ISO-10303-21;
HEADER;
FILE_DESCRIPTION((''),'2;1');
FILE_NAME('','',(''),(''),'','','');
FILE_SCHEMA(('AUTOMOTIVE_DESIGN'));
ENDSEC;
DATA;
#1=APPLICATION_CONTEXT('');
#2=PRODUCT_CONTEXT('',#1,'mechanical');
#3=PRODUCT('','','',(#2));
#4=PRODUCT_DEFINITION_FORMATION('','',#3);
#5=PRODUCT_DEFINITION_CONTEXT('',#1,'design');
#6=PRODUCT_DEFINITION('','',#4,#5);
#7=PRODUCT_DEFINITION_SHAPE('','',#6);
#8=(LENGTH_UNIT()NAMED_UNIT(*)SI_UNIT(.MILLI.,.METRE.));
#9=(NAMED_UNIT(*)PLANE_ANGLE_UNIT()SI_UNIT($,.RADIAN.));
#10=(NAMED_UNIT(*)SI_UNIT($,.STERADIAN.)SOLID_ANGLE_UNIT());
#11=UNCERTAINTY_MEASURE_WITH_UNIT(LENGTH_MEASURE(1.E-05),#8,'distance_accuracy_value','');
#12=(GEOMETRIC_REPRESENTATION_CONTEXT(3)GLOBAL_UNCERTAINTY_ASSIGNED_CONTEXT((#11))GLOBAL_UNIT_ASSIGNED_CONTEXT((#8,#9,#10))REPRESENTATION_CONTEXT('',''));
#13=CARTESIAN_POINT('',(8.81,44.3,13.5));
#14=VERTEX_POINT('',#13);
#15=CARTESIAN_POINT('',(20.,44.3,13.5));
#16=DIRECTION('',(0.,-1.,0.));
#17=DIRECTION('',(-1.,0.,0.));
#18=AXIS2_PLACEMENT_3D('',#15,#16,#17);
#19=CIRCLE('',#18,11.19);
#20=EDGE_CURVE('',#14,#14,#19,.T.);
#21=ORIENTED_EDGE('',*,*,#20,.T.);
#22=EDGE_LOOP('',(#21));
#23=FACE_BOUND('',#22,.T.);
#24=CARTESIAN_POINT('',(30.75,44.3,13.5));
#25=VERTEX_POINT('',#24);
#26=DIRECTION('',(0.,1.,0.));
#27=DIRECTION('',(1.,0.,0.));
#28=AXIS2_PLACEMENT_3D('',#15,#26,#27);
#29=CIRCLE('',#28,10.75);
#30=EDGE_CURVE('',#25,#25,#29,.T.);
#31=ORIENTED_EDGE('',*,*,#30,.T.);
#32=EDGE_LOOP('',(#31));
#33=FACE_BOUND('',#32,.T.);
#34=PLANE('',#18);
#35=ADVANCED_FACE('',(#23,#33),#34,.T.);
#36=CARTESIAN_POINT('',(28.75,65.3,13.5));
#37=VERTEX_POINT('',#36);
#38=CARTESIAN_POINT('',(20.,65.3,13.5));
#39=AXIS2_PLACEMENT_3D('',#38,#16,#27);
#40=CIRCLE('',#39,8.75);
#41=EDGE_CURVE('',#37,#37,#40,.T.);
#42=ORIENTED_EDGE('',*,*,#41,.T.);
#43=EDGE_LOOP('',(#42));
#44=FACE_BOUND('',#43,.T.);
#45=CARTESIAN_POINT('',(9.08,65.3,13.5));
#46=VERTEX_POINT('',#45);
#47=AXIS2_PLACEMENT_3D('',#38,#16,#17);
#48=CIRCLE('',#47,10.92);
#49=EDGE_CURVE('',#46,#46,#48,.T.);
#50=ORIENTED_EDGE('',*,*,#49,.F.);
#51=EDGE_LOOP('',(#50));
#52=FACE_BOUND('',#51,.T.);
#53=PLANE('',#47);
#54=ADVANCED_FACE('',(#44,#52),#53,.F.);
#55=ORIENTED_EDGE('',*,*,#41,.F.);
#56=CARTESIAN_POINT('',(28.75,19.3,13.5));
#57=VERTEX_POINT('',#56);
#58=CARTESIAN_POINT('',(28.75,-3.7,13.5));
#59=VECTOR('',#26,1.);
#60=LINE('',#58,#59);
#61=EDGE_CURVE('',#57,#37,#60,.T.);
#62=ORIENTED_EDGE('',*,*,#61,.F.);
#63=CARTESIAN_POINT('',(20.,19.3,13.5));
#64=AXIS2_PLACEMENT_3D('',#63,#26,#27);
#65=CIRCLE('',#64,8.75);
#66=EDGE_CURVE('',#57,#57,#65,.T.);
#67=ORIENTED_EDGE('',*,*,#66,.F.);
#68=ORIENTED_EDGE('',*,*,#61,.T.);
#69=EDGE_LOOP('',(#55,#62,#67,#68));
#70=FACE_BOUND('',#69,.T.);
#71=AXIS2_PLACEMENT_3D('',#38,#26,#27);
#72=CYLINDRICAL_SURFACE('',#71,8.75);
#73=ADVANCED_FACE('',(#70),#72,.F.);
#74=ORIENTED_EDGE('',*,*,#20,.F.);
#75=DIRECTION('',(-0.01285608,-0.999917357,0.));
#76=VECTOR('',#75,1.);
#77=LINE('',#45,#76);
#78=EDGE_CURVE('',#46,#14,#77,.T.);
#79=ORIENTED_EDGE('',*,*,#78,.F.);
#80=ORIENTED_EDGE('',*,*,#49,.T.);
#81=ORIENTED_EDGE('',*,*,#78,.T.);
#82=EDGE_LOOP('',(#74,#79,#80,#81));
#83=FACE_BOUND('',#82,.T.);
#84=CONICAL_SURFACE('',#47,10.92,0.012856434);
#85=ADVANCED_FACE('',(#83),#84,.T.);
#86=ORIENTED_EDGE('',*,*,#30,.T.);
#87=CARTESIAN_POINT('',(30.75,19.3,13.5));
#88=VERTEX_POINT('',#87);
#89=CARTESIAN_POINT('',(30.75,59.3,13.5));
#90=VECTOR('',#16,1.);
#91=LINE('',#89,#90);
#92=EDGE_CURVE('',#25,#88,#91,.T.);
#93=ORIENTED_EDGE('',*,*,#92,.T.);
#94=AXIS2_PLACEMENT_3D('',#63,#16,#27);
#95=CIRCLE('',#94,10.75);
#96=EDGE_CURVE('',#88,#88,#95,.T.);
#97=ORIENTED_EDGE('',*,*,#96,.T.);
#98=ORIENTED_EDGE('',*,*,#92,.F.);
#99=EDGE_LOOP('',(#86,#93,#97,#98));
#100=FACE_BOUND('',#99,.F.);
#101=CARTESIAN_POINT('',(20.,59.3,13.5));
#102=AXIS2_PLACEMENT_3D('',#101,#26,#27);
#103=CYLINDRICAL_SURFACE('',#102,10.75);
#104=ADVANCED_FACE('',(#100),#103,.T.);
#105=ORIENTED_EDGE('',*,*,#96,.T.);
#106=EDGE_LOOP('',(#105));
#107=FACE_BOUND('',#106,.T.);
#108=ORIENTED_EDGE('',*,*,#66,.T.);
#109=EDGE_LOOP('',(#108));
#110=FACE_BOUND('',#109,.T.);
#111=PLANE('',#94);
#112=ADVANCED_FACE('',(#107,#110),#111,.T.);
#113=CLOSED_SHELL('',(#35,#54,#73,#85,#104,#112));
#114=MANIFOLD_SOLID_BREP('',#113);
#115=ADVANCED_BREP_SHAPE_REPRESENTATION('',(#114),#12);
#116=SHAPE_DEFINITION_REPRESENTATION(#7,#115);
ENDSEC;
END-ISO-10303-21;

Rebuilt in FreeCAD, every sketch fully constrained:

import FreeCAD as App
import Part
import Sketcher
from FreeCAD import Vector


def add_polygon(sketch, points):
    """Adds a closed chain of lines whose ends are joined by coincident constraints."""
    first, n = sketch.GeometryCount, len(points)
    for a, b in zip(points, points[1:] + points[:1]):
        sketch.addGeometry(Part.LineSegment(App.Vector(*a, 0), App.Vector(*b, 0)), False)
    for i in range(n):
        sketch.addConstraint(Sketcher.Constraint("Coincident", first + i, 2, first + (i + 1) % n, 1))

doc = App.newDocument("Part")
body = doc.addObject("PartDesign::Body", "Body")

# Sketch on XZ plane
sketch1 = body.newObject("Sketcher::SketchObject", "Sketch")
sketch1.AttachmentSupport = (doc.getObject("XZ_Plane"), [""])
sketch1.MapMode = "FlatFace"
sketch1.AttachmentOffset = App.Placement(Vector(0, 0, -65.3), App.Rotation())
sketch1.addGeometry(Part.Circle(Vector(20, 14, 0), Vector(0, 0, 1), 9), False)
sketch1.addConstraint([
    Sketcher.Constraint("Diameter", 0, 17.5),
    Sketcher.Constraint("DistanceX", -1, 1, 0, 3, 20.0),
    Sketcher.Constraint("DistanceY", -1, 1, 0, 3, 13.5),
])
pad1 = body.newObject("PartDesign::Pad", "Pad")
pad1.Profile = sketch1
pad1.Length = 40
body2 = doc.addObject("PartDesign::Body", "Body001")

# Sketch on XZ plane
sketch2 = body2.newObject("Sketcher::SketchObject", "Sketch001")
sketch2.AttachmentSupport = (doc.getObject("XZ_Plane001"), [""])
sketch2.MapMode = "FlatFace"
sketch2.AttachmentOffset = App.Placement(Vector(0, 0, -36.3), App.Rotation())
sketch2.addGeometry(Part.Circle(Vector(20, 14, 0), Vector(0, 0, 1), 9), False)
sketch2.addConstraint([
    Sketcher.Constraint("Diameter", 0, 17.5),
    Sketcher.Constraint("DistanceX", -1, 1, 0, 3, 20.0),
    Sketcher.Constraint("DistanceY", -1, 1, 0, 3, 13.5),
])
pad2 = body2.newObject("PartDesign::Pad", "Pad001")
pad2.Profile = sketch2
pad2.Length = 40
doc.recompute()

boolean = body2.newObject("PartDesign::Boolean", "Boolean")
boolean.Type = "Fuse"
boolean.addObjects([body])
body3 = doc.addObject("PartDesign::Body", "Body002")

# Sketch on XZ plane
sketch3 = body3.newObject("Sketcher::SketchObject", "Sketch002")
sketch3.AttachmentSupport = (doc.getObject("XZ_Plane002"), [""])
sketch3.MapMode = "FlatFace"
sketch3.AttachmentOffset = App.Placement(Vector(0, 0, -59.3), App.Rotation())
sketch3.addGeometry(Part.Circle(Vector(20, 14, 0), Vector(0, 0, 1), 11), False)
sketch3.addConstraint([
    Sketcher.Constraint("Diameter", 0, 21.5),
    Sketcher.Constraint("DistanceX", -1, 1, 0, 3, 20.0),
    Sketcher.Constraint("DistanceY", -1, 1, 0, 3, 13.5),
])
pad3 = body3.newObject("PartDesign::Pad", "Pad002")
pad3.Profile = sketch3
pad3.Length = 40
body4 = doc.addObject("PartDesign::Body", "Body003")

# Sketch on XY plane
sketch4 = body4.newObject("Sketcher::SketchObject", "Sketch003")
sketch4.AttachmentSupport = (doc.getObject("XY_Plane003"), [""])
sketch4.MapMode = "FlatFace"
sketch4.AttachmentOffset = App.Placement(Vector(0, 0, 13.5), App.Rotation())
add_polygon(sketch4, [(20, 65), (9, 65), (9, 44), (20, 44)])  # lines 0-3
sketch4.addGeometry(Part.LineSegment(Vector(20, 65, 0), Vector(20, 44, 0)), True)  # axis
sketch4.addConstraint([
    Sketcher.Constraint("Horizontal", 0),
    Sketcher.Constraint("Horizontal", 2),
    Sketcher.Constraint("Vertical", 3),
    Sketcher.Constraint("Vertical", 4),
    Sketcher.Constraint("Coincident", 4, 1, 3, 2),
    Sketcher.Constraint("Horizontal", 1, 2, 4, 2),
    Sketcher.Constraint("DistanceY", 3, 1, 3, 2, 21.0),
    Sketcher.Constraint("DistanceX", -1, 1, 2, 2, 20.0),
    Sketcher.Constraint("DistanceX", 0, 2, 0, 1, 10.92),
    Sketcher.Constraint("DistanceX", 2, 1, 2, 2, 11.19),
    Sketcher.Constraint("DistanceY", -1, 1, 0, 2, 65.3),
])
revolution = body4.newObject("PartDesign::Revolution", "Revolution")
revolution.Profile = sketch4
revolution.ReferenceAxis = (sketch4, ["Axis0"])
revolution.Angle = 360
doc.recompute()

boolean2 = body4.newObject("PartDesign::Boolean", "Boolean001")
boolean2.Type = "Fuse"
boolean2.addObjects([body3])
doc.recompute()

boolean3 = body4.newObject("PartDesign::Boolean", "Boolean002")
boolean3.Type = "Cut"
boolean3.addObjects([body2])

doc.recompute()
